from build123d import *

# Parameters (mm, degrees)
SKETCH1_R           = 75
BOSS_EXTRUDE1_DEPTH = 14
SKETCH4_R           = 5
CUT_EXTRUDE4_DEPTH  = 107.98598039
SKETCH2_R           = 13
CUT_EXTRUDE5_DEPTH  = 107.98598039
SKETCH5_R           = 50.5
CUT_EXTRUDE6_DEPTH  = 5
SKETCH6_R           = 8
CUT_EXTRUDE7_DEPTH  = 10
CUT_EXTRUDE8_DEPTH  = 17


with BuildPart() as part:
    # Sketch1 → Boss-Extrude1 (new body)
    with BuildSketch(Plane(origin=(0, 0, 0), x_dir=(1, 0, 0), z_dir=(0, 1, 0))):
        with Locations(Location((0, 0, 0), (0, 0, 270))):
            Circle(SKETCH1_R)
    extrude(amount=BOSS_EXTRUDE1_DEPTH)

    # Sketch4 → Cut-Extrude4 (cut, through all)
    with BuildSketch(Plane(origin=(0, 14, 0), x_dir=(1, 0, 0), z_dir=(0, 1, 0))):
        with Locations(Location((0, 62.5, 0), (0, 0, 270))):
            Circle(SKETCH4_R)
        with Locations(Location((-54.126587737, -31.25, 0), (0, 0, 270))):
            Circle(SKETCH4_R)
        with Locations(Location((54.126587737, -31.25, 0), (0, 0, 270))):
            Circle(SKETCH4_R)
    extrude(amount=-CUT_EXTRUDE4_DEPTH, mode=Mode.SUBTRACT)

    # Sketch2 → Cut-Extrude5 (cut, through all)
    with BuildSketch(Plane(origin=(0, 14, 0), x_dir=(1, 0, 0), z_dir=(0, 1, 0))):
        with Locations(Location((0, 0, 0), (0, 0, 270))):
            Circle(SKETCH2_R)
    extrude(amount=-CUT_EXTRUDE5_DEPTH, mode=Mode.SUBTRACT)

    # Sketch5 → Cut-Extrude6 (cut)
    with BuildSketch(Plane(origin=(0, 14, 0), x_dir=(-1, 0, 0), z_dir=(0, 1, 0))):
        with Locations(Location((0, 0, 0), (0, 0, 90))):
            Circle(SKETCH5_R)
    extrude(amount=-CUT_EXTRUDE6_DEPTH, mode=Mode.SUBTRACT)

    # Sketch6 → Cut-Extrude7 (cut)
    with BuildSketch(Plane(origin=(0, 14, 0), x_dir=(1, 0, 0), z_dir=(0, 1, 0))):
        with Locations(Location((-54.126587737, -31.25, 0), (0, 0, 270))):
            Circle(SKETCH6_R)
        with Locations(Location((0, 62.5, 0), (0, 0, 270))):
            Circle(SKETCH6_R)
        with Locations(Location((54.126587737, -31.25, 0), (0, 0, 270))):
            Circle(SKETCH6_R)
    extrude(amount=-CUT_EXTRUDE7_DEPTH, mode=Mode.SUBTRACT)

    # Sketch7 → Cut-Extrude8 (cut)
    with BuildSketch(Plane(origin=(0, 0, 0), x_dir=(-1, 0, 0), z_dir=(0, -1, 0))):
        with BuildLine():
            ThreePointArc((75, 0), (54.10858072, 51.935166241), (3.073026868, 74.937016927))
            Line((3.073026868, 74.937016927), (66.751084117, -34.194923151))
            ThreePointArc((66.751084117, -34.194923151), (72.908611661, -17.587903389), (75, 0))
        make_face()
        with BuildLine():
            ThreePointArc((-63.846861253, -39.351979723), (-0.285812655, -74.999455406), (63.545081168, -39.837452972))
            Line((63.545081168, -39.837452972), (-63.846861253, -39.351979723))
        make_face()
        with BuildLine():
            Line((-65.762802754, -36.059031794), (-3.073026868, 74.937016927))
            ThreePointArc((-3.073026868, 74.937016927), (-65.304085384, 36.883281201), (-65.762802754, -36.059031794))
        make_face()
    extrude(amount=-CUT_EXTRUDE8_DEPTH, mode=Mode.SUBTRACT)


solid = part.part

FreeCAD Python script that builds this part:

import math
import FreeCAD as App
import Part
import Sketcher

doc = App.newDocument("Part")
body = doc.addObject("PartDesign::Body", "Body")

sketch1 = body.newObject("Sketcher::SketchObject", "Sketch")
sketch1.AttachmentSupport = (doc.getObject("XZ_Plane"), [""])
sketch1.MapMode = "FlatFace"
sketch1.addGeometry(Part.Circle(App.Vector(0, 0, 0), App.Vector(0, 0, 1), 75), False)
sketch1.addConstraint([
    Sketcher.Constraint("Coincident", 0, 3, -1, 1),
    Sketcher.Constraint("Diameter", 0, 150.0),
])
pad1 = body.newObject("PartDesign::Pad", "Pad")
pad1.Profile = sketch1
pad1.Length = 14
pad1.Reversed = True

sketch2 = body.newObject("Sketcher::SketchObject", "Sketch001")
sketch2.AttachmentSupport = (doc.getObject("XZ_Plane"), [""])
sketch2.MapMode = "FlatFace"
sketch2.AttachmentOffset = App.Placement(App.Vector(0, 0, -14), App.Rotation())
sketch2.addGeometry([
    Part.Circle(App.Vector(0, -62.5, 0), App.Vector(0, 0, 1), 5),
    Part.Circle(App.Vector(-54.126588, 31.25, 0), App.Vector(0, 0, 1), 5),
    Part.Circle(App.Vector(54.126588, 31.25, 0), App.Vector(0, 0, 1), 5),
], False)
sketch2.addConstraint([
    Sketcher.Constraint("Equal", 0, 1),
    Sketcher.Constraint("Equal", 1, 2),
    Sketcher.Constraint("Symmetric", 1, 3, 2, 3, -2),
    Sketcher.Constraint("PointOnObject", 0, 3, -2),
    Sketcher.Constraint("Diameter", 0, 10.0),
    Sketcher.Constraint("DistanceY", 0, 3, -1, 1, 62.5),
    Sketcher.Constraint("DistanceY", -1, 1, 1, 3, 31.25),
    Sketcher.Constraint("DistanceX", 1, 3, -1, 1, 54.126588),
])
pocket1 = body.newObject("PartDesign::Pocket", "Pocket")
pocket1.Profile = sketch2
pocket1.Type = "ThroughAll"
pocket1.Reversed = True

sketch3 = body.newObject("Sketcher::SketchObject", "Sketch002")
sketch3.AttachmentSupport = (doc.getObject("XZ_Plane"), [""])
sketch3.MapMode = "FlatFace"
sketch3.AttachmentOffset = App.Placement(App.Vector(0, 0, -14), App.Rotation())
sketch3.addGeometry(Part.Circle(App.Vector(0, 0, 0), App.Vector(0, 0, 1), 13), False)
sketch3.addConstraint([
    Sketcher.Constraint("Coincident", 0, 3, -1, 1),
    Sketcher.Constraint("Diameter", 0, 26.0),
])
pocket2 = body.newObject("PartDesign::Pocket", "Pocket001")
pocket2.Profile = sketch3
pocket2.Type = "ThroughAll"
pocket2.Reversed = True

sketch4 = body.newObject("Sketcher::SketchObject", "Sketch003")
sketch4.AttachmentSupport = (doc.getObject("XZ_Plane"), [""])
sketch4.MapMode = "FlatFace"
sketch4.AttachmentOffset = App.Placement(App.Vector(0, 0, -14), App.Rotation())
sketch4.addGeometry(Part.Circle(App.Vector(0, 0, 0), App.Vector(0, 0, 1), 50.5), False)
sketch4.addConstraint([
    Sketcher.Constraint("Coincident", 0, 3, -1, 1),
    Sketcher.Constraint("Diameter", 0, 101.0),
])
pocket3 = body.newObject("PartDesign::Pocket", "Pocket002")
pocket3.Profile = sketch4
pocket3.Length = 5
pocket3.Reversed = True

sketch5 = body.newObject("Sketcher::SketchObject", "Sketch004")
sketch5.AttachmentSupport = (doc.getObject("XZ_Plane"), [""])
sketch5.MapMode = "FlatFace"
sketch5.AttachmentOffset = App.Placement(App.Vector(0, 0, -14), App.Rotation())
sketch5.addGeometry([
    Part.Circle(App.Vector(-54.126588, 31.25, 0), App.Vector(0, 0, 1), 8),
    Part.Circle(App.Vector(0, -62.5, 0), App.Vector(0, 0, 1), 8),
    Part.Circle(App.Vector(54.126588, 31.25, 0), App.Vector(0, 0, 1), 8),
], False)
sketch5.addConstraint([
    Sketcher.Constraint("Equal", 0, 1),
    Sketcher.Constraint("Equal", 1, 2),
    Sketcher.Constraint("Symmetric", 0, 3, 2, 3, -2),
    Sketcher.Constraint("PointOnObject", 1, 3, -2),
    Sketcher.Constraint("Diameter", 0, 16.0),
    Sketcher.Constraint("DistanceY", 1, 3, -1, 1, 62.5),
    Sketcher.Constraint("DistanceY", -1, 1, 0, 3, 31.25),
    Sketcher.Constraint("DistanceX", 0, 3, -1, 1, 54.126588),
])
pocket4 = body.newObject("PartDesign::Pocket", "Pocket003")
pocket4.Profile = sketch5
pocket4.Length = 10
pocket4.Reversed = True

sketch6 = body.newObject("Sketcher::SketchObject", "Sketch005")
sketch6.AttachmentSupport = (doc.getObject("XZ_Plane"), [""])
sketch6.MapMode = "FlatFace"
sketch6.addGeometry([
    Part.ArcOfCircle(Part.Circle(App.Vector(0, 0, 0), App.Vector(0, 0, 1), 75), math.radians(180), math.radians(267.651723)),
    Part.LineSegment(App.Vector(-3.073027, -74.937017, 0), App.Vector(-66.751084, 34.194923, 0)),
    Part.ArcOfCircle(Part.Circle(App.Vector(0, 0, 0), App.Vector(0, 0, 1), 75), math.radians(152.875063), math.radians(180)),
    Part.ArcOfCircle(Part.Circle(App.Vector(0, 0, 0), App.Vector(0, 0, 1), 75), math.radians(31.647583), math.radians(147.915727)),
    Part.LineSegment(App.Vector(-63.545081, 39.837453, 0), App.Vector(63.846861, 39.35198, 0)),
    Part.LineSegment(App.Vector(65.762803, 36.059032, 0), App.Vector(3.073027, -74.937017, 0)),
    Part.ArcOfCircle(Part.Circle(App.Vector(0, 0, 0), App.Vector(0, 0, 1), 75), math.radians(-87.651723), math.radians(28.736821)),
], False)
sketch6.addConstraint([
    Sketcher.Constraint("Coincident", 0, 2, 1, 1),
    Sketcher.Constraint("Coincident", 1, 2, 2, 1),
    Sketcher.Constraint("Tangent", 2, 2, 0, 1),
    Sketcher.Constraint("Coincident", 3, 1, 4, 2),
    Sketcher.Constraint("Coincident", 4, 1, 3, 2),
    Sketcher.Constraint("Coincident", 5, 1, 6, 2),
    Sketcher.Constraint("Coincident", 6, 1, 5, 2),
    Sketcher.Constraint("Coincident", 0, 3, -1, 1),
    Sketcher.Constraint("Coincident", 3, 3, -1, 1),
    Sketcher.Constraint("Coincident", 6, 3, -1, 1),
    Sketcher.Constraint("Equal", 0, 2),
    Sketcher.Constraint("Equal", 2, 3),
    Sketcher.Constraint("Equal", 3, 6),
    Sketcher.Constraint("PointOnObject", 2, 2, -1),
    Sketcher.Constraint("Horizontal", 0, 2, 6, 1),
    Sketcher.Constraint("Radius", 0, 75.0),
    Sketcher.Constraint("Distance", 5, 127.476001),
    Sketcher.Constraint("DistanceX", -1, 1, 3, 1, 63.846861),
    Sketcher.Constraint("DistanceX", 4, 1, -1, 1, 63.545081),
    Sketcher.Constraint("DistanceY", -1, 1, 5, 1, 36.059032),
    Sketcher.Constraint("DistanceY", 0, 2, 1, 2, 109.13194),
])
pocket5 = body.newObject("PartDesign::Pocket", "Pocket004")
pocket5.Profile = sketch6
pocket5.Length = 17

doc.recompute()
